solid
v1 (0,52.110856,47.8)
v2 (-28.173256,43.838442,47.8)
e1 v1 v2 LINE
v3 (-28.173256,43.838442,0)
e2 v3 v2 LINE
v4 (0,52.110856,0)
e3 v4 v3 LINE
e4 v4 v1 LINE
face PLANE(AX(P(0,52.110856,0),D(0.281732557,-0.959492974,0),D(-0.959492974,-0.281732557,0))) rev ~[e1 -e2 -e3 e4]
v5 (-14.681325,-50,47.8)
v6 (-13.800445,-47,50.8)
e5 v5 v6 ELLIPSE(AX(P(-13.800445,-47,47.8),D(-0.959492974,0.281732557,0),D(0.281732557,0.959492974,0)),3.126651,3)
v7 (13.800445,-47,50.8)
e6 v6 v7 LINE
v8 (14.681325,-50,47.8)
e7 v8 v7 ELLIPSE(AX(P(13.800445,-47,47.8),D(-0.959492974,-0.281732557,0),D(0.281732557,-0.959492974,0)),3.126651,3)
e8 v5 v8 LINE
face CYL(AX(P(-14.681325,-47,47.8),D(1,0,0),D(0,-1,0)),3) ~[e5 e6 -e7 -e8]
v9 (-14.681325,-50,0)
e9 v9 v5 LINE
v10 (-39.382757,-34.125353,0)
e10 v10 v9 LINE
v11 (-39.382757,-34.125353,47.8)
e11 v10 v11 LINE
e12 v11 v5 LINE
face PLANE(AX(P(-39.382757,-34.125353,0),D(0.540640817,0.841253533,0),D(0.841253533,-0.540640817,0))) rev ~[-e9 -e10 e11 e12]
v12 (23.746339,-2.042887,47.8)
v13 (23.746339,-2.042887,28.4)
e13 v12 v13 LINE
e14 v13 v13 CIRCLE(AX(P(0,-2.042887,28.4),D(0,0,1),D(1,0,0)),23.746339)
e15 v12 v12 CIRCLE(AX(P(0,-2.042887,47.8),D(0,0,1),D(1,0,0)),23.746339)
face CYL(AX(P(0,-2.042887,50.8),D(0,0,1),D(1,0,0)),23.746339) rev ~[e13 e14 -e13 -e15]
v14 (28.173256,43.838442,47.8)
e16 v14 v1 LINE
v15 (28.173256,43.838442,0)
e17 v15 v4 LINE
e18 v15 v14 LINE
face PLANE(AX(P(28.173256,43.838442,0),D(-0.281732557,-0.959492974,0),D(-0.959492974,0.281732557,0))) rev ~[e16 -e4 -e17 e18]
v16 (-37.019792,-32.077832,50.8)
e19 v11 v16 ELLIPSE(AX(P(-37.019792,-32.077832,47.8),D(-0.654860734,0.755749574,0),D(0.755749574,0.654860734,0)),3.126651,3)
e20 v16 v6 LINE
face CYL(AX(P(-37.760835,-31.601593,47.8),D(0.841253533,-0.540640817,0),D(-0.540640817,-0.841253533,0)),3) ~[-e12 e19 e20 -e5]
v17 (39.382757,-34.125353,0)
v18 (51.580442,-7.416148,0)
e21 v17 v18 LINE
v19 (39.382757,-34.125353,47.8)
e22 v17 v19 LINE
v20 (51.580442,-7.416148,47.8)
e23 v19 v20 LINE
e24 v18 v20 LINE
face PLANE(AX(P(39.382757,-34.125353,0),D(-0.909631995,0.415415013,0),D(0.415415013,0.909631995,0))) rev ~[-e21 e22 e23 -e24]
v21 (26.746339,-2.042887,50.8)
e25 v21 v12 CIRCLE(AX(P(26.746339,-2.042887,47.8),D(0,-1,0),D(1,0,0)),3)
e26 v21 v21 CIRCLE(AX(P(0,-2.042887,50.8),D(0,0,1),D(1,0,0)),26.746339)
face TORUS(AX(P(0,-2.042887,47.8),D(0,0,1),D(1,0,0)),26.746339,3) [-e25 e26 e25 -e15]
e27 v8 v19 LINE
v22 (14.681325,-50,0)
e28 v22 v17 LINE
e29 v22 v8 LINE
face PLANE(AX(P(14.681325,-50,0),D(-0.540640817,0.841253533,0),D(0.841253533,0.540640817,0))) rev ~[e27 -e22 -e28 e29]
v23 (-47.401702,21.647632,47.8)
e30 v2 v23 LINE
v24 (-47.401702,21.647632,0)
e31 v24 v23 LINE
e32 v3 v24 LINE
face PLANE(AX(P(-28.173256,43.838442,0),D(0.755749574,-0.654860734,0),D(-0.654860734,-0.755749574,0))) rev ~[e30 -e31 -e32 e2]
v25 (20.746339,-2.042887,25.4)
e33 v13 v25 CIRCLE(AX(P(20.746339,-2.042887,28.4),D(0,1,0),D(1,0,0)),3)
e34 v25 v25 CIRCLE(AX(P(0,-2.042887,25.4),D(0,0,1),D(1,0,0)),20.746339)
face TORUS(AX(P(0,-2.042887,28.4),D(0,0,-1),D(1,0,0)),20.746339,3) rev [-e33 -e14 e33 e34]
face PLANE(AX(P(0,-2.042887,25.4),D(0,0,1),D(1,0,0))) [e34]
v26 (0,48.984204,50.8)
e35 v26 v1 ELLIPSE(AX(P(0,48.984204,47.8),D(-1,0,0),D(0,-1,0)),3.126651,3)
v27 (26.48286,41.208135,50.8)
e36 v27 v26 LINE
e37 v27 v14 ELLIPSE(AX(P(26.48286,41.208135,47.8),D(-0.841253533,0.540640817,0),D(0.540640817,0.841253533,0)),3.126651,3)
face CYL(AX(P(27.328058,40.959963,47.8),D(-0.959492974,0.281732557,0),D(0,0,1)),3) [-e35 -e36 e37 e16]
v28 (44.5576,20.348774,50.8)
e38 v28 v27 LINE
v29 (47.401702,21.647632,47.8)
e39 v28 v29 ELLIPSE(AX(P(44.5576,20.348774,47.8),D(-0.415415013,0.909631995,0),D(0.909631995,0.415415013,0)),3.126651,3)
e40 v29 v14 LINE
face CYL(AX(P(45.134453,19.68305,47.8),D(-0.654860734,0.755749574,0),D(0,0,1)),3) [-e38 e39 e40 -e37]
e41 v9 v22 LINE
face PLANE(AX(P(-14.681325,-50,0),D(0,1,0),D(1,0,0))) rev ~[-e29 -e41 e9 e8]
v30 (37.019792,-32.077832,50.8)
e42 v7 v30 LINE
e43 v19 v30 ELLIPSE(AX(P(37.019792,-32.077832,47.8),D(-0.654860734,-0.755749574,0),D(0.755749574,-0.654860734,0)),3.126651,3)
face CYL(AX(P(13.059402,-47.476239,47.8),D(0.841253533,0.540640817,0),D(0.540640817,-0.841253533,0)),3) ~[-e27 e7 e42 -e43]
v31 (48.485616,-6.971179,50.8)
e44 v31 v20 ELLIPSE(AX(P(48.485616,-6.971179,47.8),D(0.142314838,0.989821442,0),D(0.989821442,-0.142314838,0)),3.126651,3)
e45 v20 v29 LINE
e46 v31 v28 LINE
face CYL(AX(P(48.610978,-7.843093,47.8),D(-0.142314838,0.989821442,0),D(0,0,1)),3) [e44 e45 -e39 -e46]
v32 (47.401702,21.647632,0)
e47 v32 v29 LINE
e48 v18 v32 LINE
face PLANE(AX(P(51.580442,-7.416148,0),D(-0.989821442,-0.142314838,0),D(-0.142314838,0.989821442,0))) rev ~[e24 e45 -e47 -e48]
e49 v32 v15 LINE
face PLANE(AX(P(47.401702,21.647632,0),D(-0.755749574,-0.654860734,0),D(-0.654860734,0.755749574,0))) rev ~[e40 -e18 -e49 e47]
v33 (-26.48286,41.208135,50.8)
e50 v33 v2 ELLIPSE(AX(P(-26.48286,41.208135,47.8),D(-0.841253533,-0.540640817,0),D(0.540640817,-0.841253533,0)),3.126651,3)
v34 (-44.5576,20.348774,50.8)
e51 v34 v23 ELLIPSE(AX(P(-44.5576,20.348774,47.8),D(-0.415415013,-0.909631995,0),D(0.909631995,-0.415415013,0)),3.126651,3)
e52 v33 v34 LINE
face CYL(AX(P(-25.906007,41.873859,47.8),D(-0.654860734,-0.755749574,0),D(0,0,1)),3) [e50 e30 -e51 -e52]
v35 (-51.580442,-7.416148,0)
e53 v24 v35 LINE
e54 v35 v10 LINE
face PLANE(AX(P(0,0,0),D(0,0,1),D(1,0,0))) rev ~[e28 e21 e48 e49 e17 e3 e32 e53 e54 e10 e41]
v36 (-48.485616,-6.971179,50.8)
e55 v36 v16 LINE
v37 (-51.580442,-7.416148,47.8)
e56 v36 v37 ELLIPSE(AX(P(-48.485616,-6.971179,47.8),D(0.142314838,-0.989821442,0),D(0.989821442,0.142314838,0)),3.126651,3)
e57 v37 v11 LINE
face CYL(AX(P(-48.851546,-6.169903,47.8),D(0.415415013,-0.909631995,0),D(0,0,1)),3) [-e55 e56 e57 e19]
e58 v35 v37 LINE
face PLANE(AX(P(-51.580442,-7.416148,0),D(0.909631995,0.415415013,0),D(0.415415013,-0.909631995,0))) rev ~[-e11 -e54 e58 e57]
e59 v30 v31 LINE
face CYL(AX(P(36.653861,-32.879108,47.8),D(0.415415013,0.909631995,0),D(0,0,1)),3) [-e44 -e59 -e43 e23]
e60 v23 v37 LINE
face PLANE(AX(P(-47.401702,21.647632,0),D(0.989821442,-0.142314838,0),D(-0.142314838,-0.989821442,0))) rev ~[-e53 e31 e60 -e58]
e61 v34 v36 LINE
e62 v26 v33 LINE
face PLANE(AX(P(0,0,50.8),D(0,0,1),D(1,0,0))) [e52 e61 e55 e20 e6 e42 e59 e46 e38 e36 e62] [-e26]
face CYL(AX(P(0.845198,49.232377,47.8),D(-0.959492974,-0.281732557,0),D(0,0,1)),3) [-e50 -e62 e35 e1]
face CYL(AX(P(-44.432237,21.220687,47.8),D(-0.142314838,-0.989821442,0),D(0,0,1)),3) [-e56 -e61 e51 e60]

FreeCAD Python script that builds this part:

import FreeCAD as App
import Part
import Sketcher
Q = App.Units.Quantity


def edges_at(feature, points):
    """Names of the edges that pass closest to the given points."""
    edges = feature.Shape.Edges
    near = lambda p: min(range(len(edges)), key=lambda i: edges[i].distToShape(Part.Vertex(*p))[0])
    return sorted({f"Edge{near(p) + 1}" for p in points})


def add_polygon(sketch, points):
    """Adds a closed chain of lines whose ends are joined by coincident constraints."""
    first, n = sketch.GeometryCount, len(points)
    for a, b in zip(points, points[1:] + points[:1]):
        sketch.addGeometry(Part.LineSegment(App.Vector(*a, 0), App.Vector(*b, 0)), False)
    for i in range(n):
        sketch.addConstraint(Sketcher.Constraint("Coincident", first + i, 2, first + (i + 1) % n, 1))

doc = App.newDocument("Part")
body = doc.addObject("PartDesign::Body", "Body")

sketch1 = body.newObject("Sketcher::SketchObject", "Sketch")
sketch1.AttachmentSupport = (doc.getObject("XY_Plane"), [""])
sketch1.MapMode = "FlatFace"
add_polygon(sketch1, [(-14.681325, -50), (14.681325, -50), (39.382757, -34.125353), (51.580442, -7.416148), (47.401702, 21.647632), (28.173256, 43.838442), (0, 52.110856), (-28.173256, 43.838442), (-47.401702, 21.647632), (-51.580442, -7.416148), (-39.382757, -34.125353)])
sketch1.addConstraint([
    Sketcher.Constraint("Horizontal", 0),
    Sketcher.Constraint("Symmetric", 4, 2, 6, 2, -2),
    Sketcher.Constraint("Symmetric", 3, 2, 7, 2, -2),
    Sketcher.Constraint("Symmetric", 2, 2, 8, 2, -2),
    Sketcher.Constraint("Symmetric", 1, 2, 9, 2, -2),
    Sketcher.Constraint("PointOnObject", 5, 2, -2),
    Sketcher.Constraint("Equal", 1, 2),
    Sketcher.Constraint("Equal", 2, 3),
    Sketcher.Constraint("Equal", 3, 4),
    Sketcher.Constraint("Equal", 4, 5),
    Sketcher.Constraint("Equal", 9, 10),
    Sketcher.Constraint("DistanceX", 0, 1, 0, 2, 29.362649),
    Sketcher.Constraint("DistanceY", 0, 2, -1, 1, 50.0),
    Sketcher.Constraint("DistanceX", -1, 1, 3, 2, 47.401702),
    Sketcher.Constraint("DistanceX", 4, 2, 1, 2, 11.209501),
    Sketcher.Constraint("DistanceX", 6, 2, 2, 2, 79.753698),
    Sketcher.Constraint("Distance", 1, 29.362649),
    Sketcher.Constraint("DistanceY", 2, 2, -1, 1, 7.416148),
])
pad1 = body.newObject("PartDesign::Pad", "Pad")
pad1.Profile = sketch1
pad1.Length = Q("2 in")

sketch2 = body.newObject("Sketcher::SketchObject", "Sketch001")
sketch2.AttachmentSupport = (doc.getObject("XY_Plane"), [""])
sketch2.MapMode = "FlatFace"
sketch2.AttachmentOffset = App.Placement(App.Vector(0, 0, 2 * 25.4), App.Rotation())
sketch2.addGeometry(Part.Circle(App.Vector(0, -2.042887, 0), App.Vector(0, 0, 1), 23.746339), False)
sketch2.addConstraint([
    Sketcher.Constraint("PointOnObject", 0, 3, -2),
    Sketcher.Constraint("Diameter", 0, 47.492677),
    Sketcher.Constraint("DistanceY", 0, 3, -1, 1, 2.042887),
])
pocket1 = body.newObject("PartDesign::Pocket", "Pocket")
pocket1.Profile = sketch2
pocket1.Length = Q("1 in")
doc.recompute()

fillet = body.newObject("PartDesign::Fillet", "Fillet")
fillet.Base = (pocket1, edges_at(pocket1, [
    (-23.746, -2.043, 25.4),
    (-23.746, -2.043, 50.8),
    (0, -50, 50.8),
    (-27.032, -42.063, 50.8),
    (27.032, -42.063, 50.8),
    (-45.482, -20.771, 50.8),
    (45.482, -20.771, 50.8),
    (-49.491, 7.116, 50.8),
    (49.491, 7.116, 50.8),
    (-37.787, 32.743, 50.8),
    (37.787, 32.743, 50.8),
    (-14.087, 47.975, 50.8),
    (14.087, 47.975, 50.8),
]))
fillet.Radius = 3

doc.recompute()
